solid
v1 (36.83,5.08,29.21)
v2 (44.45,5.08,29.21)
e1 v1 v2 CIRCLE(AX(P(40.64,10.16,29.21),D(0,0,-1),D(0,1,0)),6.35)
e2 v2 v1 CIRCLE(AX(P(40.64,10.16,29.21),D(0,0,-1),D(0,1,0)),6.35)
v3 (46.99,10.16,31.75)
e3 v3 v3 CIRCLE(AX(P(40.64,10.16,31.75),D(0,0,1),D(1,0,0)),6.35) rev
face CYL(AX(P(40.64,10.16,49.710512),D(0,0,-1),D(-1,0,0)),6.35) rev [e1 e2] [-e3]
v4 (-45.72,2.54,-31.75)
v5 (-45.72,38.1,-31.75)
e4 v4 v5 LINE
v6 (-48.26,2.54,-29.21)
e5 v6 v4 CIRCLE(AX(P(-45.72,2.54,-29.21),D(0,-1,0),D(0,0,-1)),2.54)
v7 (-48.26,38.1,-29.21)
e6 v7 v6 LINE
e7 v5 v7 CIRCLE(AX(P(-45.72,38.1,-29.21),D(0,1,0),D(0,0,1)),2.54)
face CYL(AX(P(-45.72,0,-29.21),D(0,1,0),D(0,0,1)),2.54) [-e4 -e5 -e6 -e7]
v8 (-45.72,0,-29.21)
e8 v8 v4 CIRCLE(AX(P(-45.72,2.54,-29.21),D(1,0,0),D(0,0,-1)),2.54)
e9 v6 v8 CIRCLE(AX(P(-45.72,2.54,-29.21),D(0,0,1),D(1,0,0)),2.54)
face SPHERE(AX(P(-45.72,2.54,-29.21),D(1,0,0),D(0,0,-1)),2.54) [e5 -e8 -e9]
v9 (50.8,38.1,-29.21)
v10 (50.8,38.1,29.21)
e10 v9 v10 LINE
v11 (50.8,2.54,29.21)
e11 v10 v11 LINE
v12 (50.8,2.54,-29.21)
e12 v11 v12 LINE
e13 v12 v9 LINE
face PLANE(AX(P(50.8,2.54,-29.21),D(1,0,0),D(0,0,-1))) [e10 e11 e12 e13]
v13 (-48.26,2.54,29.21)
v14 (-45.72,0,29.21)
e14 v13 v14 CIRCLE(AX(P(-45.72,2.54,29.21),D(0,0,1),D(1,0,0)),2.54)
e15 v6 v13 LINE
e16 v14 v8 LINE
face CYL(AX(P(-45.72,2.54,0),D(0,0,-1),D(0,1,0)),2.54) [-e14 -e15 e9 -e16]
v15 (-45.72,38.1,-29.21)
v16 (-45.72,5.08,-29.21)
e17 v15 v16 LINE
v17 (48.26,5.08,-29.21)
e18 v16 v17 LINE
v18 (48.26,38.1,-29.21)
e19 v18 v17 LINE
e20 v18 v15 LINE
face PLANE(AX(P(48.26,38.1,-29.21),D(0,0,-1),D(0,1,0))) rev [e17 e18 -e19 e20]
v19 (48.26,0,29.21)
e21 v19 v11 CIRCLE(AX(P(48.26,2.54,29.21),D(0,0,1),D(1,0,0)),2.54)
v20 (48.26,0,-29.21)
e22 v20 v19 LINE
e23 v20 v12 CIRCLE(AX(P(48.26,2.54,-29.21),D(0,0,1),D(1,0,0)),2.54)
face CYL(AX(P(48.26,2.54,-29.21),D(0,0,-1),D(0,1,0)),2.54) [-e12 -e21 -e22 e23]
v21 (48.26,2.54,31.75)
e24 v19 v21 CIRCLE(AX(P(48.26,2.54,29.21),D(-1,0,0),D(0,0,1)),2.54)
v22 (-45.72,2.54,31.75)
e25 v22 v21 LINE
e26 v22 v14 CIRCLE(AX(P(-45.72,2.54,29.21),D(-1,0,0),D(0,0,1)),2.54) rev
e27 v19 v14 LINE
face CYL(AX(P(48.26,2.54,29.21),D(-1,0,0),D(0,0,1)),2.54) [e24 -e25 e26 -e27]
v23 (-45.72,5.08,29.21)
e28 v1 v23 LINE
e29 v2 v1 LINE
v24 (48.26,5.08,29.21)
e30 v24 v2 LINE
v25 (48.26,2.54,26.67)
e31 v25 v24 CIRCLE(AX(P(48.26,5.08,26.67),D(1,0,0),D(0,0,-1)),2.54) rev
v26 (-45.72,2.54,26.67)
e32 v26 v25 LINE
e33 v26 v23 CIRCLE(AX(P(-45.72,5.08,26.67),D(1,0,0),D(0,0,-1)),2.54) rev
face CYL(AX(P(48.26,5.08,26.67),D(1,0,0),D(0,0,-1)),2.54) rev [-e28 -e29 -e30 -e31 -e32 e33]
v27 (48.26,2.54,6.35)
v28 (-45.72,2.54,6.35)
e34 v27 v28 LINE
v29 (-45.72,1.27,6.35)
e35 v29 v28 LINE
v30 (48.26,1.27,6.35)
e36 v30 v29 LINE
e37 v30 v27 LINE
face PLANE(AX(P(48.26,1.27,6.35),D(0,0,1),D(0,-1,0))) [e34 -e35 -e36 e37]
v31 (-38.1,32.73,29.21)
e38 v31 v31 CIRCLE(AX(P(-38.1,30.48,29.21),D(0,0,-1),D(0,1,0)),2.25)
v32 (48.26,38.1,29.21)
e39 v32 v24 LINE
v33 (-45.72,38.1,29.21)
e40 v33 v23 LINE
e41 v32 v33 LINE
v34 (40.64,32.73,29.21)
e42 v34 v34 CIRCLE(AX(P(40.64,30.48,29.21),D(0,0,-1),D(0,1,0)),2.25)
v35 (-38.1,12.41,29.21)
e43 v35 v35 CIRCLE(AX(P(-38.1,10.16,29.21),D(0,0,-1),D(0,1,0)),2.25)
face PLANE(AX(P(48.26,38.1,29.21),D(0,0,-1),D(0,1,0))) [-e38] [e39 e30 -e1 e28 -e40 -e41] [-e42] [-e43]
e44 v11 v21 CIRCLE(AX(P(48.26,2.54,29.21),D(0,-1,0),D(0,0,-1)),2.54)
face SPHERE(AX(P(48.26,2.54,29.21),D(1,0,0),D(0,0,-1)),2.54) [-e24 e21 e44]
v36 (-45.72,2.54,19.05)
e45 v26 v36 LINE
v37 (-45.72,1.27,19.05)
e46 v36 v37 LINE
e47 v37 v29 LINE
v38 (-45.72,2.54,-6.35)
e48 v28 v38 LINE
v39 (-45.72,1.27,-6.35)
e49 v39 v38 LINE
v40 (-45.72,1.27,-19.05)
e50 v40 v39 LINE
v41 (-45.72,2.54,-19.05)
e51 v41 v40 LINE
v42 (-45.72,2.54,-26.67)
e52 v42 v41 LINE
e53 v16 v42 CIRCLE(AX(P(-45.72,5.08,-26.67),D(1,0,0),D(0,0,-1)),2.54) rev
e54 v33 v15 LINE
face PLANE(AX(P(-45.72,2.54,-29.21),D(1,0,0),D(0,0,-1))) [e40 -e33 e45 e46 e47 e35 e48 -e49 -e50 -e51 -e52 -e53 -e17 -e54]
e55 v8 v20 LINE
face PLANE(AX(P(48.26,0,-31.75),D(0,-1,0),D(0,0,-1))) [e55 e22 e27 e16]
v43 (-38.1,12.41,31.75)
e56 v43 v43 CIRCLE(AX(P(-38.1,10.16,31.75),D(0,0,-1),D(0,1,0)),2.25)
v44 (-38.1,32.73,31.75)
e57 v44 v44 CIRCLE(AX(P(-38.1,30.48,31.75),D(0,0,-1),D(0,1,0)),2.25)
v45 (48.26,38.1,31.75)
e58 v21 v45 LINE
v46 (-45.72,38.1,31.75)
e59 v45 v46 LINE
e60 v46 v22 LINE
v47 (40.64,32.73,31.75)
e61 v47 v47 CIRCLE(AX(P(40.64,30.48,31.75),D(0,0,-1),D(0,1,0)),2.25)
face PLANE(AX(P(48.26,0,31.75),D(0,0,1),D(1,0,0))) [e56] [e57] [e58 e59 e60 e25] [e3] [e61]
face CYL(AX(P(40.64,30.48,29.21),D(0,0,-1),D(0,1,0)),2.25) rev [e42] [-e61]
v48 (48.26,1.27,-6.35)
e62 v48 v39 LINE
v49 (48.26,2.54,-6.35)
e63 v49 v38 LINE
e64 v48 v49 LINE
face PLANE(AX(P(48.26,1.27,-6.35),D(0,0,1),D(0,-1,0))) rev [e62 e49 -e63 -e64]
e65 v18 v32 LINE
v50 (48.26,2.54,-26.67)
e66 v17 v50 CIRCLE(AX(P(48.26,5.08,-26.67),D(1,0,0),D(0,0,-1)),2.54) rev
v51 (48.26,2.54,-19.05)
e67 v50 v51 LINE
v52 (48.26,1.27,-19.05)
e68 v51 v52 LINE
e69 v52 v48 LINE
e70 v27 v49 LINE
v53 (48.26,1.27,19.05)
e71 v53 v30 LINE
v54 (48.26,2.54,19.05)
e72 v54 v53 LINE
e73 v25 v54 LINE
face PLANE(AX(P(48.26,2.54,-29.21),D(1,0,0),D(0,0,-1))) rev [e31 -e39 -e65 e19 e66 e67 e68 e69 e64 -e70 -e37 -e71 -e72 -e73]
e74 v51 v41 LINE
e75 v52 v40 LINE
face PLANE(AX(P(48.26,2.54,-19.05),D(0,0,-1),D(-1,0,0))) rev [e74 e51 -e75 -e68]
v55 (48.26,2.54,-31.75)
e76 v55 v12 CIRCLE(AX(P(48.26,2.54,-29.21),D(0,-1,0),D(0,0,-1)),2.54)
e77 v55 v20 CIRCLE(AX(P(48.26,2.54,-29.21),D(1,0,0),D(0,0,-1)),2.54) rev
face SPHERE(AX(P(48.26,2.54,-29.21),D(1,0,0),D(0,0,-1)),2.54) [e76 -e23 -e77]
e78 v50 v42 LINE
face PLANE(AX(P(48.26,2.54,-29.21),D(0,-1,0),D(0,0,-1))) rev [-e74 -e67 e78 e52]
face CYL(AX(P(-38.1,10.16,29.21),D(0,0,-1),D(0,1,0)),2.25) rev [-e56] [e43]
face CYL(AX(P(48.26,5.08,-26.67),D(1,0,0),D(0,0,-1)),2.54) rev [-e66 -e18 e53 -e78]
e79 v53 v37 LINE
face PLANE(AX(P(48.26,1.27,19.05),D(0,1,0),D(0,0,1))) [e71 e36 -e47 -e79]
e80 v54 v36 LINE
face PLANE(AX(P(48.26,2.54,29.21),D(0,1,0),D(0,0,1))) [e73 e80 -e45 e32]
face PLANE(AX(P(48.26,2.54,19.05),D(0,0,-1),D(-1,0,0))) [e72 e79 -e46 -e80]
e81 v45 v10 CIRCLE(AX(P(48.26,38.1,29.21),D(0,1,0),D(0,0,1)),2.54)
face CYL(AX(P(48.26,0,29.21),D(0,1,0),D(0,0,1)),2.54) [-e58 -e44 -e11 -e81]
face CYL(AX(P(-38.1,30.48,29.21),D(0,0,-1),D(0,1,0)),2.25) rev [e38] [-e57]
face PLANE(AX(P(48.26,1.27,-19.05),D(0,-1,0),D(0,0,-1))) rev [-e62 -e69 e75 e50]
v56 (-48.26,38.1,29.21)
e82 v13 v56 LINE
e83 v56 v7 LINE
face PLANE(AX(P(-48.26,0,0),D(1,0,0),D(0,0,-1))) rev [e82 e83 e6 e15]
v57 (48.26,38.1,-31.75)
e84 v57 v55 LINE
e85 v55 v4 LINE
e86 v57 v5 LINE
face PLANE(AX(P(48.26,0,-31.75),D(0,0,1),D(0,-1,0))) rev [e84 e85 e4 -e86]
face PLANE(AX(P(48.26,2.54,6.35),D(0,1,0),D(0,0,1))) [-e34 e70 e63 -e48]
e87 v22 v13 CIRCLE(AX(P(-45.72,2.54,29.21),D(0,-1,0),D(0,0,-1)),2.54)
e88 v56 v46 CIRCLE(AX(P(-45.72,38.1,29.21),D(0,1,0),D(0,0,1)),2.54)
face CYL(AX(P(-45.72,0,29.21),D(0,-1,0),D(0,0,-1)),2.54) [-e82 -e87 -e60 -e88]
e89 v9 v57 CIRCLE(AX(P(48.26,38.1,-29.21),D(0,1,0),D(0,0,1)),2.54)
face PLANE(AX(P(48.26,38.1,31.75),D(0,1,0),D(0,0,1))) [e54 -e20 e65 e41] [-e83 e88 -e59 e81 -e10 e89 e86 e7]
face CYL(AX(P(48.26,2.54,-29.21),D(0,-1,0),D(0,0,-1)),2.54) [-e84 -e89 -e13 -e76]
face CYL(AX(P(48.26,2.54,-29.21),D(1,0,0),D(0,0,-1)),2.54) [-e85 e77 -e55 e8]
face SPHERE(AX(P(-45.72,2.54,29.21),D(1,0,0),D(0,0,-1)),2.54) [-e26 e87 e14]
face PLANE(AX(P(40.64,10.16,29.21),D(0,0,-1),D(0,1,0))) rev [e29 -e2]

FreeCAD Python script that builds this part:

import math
import FreeCAD as App
import Part
import Sketcher

V = App.Vector
Q = App.Units.Quantity


def edges_at(feature, points):
    """Names of the edges that pass closest to the given points."""
    edges = feature.Shape.Edges
    near = lambda p: min(range(len(edges)), key=lambda i: edges[i].distToShape(Part.Vertex(*p))[0])
    return sorted({f"Edge{near(p) + 1}" for p in points})

doc = App.newDocument("Part")
params = doc.addObject("Spreadsheet::Sheet", "Params")
for row, (alias, value) in enumerate([
    ("sketch1_width", "1.5 in"),
    ("sketch1_width2", "1.4 in"),
    ("sketch1_height", "2.5 in"),
    ("sketch1_height2", "0.1 in"),
    ("sketch1_height3", "0.4 in"),
    ("pad1_length", "3.8 in"),
    ("fillet_radius", "0.1 in"),
    ("sketch2_radius", "0.1 in"),
    ("sketch2_width", "1.4 in"),
    ("sketch2_height", "2.3 in"),
    ("pad2_length", "0.1 in"),
    ("sketch3_radius", "0.1 in"),
    ("sketch3_width", "1.4 in"),
    ("sketch3_height", "2.5 in"),
    ("pad3_length", "0.1 in"),
    ("sketch4_diameter", "0.5 in"),
    ("pocket1_length", "0.1 in"),
    ("fillet2_radius", "0.1 in"),
    ("hole_diameter", "4.5 mm"),
    ("hole_depth", "0.1 in"),
], start=1):
    params.set(f"A{row}", alias)
    params.set(f"B{row}", "=" + value)
    params.setAlias(f"B{row}", alias)

body = doc.addObject("PartDesign::Body", "Body")

# Sketch on YZ plane
sketch1 = body.newObject("Sketcher::SketchObject", "Sketch")
sketch1.AttachmentSupport = (doc.getObject("YZ_Plane"), [""])
sketch1.MapMode = "FlatFace"
sketch1.addGeometry([
    Part.LineSegment(V(0, 31.8, 0), V(0, -31.8, 0)),  # 0
    Part.LineSegment(V(0, -31.8, 0), V(38.1, -31.8, 0)),  # 1
    Part.LineSegment(V(38.1, -31.8, 0), V(38.1, -29.2, 0)),  # 2
    Part.LineSegment(V(38.1, -29.2, 0), V(2.5, -29.2, 0)),  # 3
    Part.LineSegment(V(2.5, -29.2, 0), V(2.5, -19.1, 0)),  # 4
    Part.LineSegment(V(2.5, -19.1, 0), V(1.3, -19.1, 0)),  # 5
    Part.LineSegment(V(1.3, -19.1, 0), V(1.3, -6.3, 0)),  # 6
    Part.LineSegment(V(1.3, -6.3, 0), V(2.5, -6.3, 0)),  # 7
    Part.LineSegment(V(2.5, -6.3, 0), V(2.5, 6.3, 0)),  # 8
    Part.LineSegment(V(2.5, 6.3, 0), V(1.3, 6.3, 0)),  # 9
    Part.LineSegment(V(1.3, 6.3, 0), V(1.3, 19.1, 0)),  # 10
    Part.LineSegment(V(1.3, 19.1, 0), V(2.5, 19.1, 0)),  # 11
    Part.LineSegment(V(2.5, 19.1, 0), V(2.5, 29.2, 0)),  # 12
    Part.LineSegment(V(2.5, 29.2, 0), V(38.1, 29.2, 0)),  # 13
    Part.LineSegment(V(38.1, 29.2, 0), V(38.1, 31.8, 0)),  # 14
    Part.LineSegment(V(38.1, 31.8, 0), V(0, 31.8, 0)),  # 15
], False)
sketch1.addConstraint([
    Sketcher.Constraint("Coincident", 0, 2, 1, 1),
    Sketcher.Constraint("Coincident", 1, 2, 2, 1),
    Sketcher.Constraint("Coincident", 2, 2, 3, 1),
    Sketcher.Constraint("Coincident", 3, 2, 4, 1),
    Sketcher.Constraint("Coincident", 4, 2, 5, 1),
    Sketcher.Constraint("Coincident", 5, 2, 6, 1),
    Sketcher.Constraint("Coincident", 6, 2, 7, 1),
    Sketcher.Constraint("Coincident", 7, 2, 8, 1),
    Sketcher.Constraint("Coincident", 8, 2, 9, 1),
    Sketcher.Constraint("Coincident", 9, 2, 10, 1),
    Sketcher.Constraint("Coincident", 10, 2, 11, 1),
    Sketcher.Constraint("Coincident", 11, 2, 12, 1),
    Sketcher.Constraint("Coincident", 12, 2, 13, 1),
    Sketcher.Constraint("Coincident", 13, 2, 14, 1),
    Sketcher.Constraint("Coincident", 14, 2, 15, 1),
    Sketcher.Constraint("Coincident", 15, 2, 0, 1),
    Sketcher.Constraint("Vertical", 0),
    Sketcher.Constraint("Horizontal", 1),
    Sketcher.Constraint("Vertical", 2),
    Sketcher.Constraint("Horizontal", 3),
    Sketcher.Constraint("Vertical", 4),
    Sketcher.Constraint("Horizontal", 5),
    Sketcher.Constraint("Vertical", 6),
    Sketcher.Constraint("Horizontal", 7),
    Sketcher.Constraint("Vertical", 8),
    Sketcher.Constraint("Horizontal", 9),
    Sketcher.Constraint("Vertical", 10),
    Sketcher.Constraint("Horizontal", 11),
    Sketcher.Constraint("Vertical", 12),
    Sketcher.Constraint("Horizontal", 13),
    Sketcher.Constraint("Vertical", 14),
    Sketcher.Constraint("Horizontal", 15),
    Sketcher.Constraint("Symmetric", 0, 2, 15, 2, -1, 1),
    Sketcher.Constraint("Symmetric", 6, 2, 9, 2, -1),
    Sketcher.Constraint("Symmetric", 4, 2, 11, 2, -1),
    Sketcher.Constraint("Symmetric", 2, 2, 13, 2, -1),
    Sketcher.Constraint("Vertical", 4, 2, 7, 2),
    Sketcher.Constraint("Equal", 6, 8),
    Sketcher.Constraint("DistanceX", 1, 1, 1, 2, Q("1.5 in")),
    Sketcher.Constraint("DistanceX", 3, 2, 3, 1, Q("1.4 in")),
    Sketcher.Constraint("DistanceY", 0, 2, 0, 1, Q("2.5 in")),
    Sketcher.Constraint("DistanceY", 2, 1, 2, 2, Q("0.1 in")),
    Sketcher.Constraint("DistanceY", 4, 1, 4, 2, Q("0.4 in")),
    Sketcher.Constraint("DistanceX", 5, 2, 5, 1, Q("0.05 in")),
])
sketch1.setExpression("Constraints[38]", "Params.sketch1_width")
sketch1.setExpression("Constraints[39]", "Params.sketch1_width2")
sketch1.setExpression("Constraints[40]", "Params.sketch1_height")
sketch1.setExpression("Constraints[41]", "Params.sketch1_height2")
sketch1.setExpression("Constraints[42]", "Params.sketch1_height3")
pad1 = body.newObject("PartDesign::Pad", "Pad")
pad1.Profile = sketch1
pad1.setExpression("Length", "Params.pad1_length")
pad1.Midplane = True
doc.recompute()

fillet = body.newObject("PartDesign::Fillet", "Fillet")
fillet.Base = (pad1, edges_at(pad1, [
    (0, 0, 31.75),
    (0, 0, -31.75),
    (0, 2.54, -29.21),
    (0, 2.54, 29.21),
]))
fillet.setExpression("Radius", "Params.fillet_radius")

# Sketch on YZ plane
sketch2 = body.newObject("Sketcher::SketchObject", "Sketch001")
sketch2.AttachmentSupport = (doc.getObject("YZ_Plane"), [""])
sketch2.MapMode = "FlatFace"
sketch2.AttachmentOffset = App.Placement(V(0, 0, -1.9 * 25.4), App.Rotation())
sketch2.addGeometry([
    Part.LineSegment(V(38.1, 31.8, 0), V(2.5, 31.8, 0)),  # 0
    Part.ArcOfCircle(Part.Circle(V(2.5, 29.2, 0), V(0, 0, 1), 2.5), math.radians(90), math.radians(180)),  # 1
    Part.LineSegment(V(0, 29.2, 0), V(0, -29.2, 0)),  # 2
    Part.ArcOfCircle(Part.Circle(V(2.5, -29.2, 0), V(0, 0, 1), 2.5), math.radians(180), math.radians(270)),  # 3
    Part.LineSegment(V(2.5, -31.8, 0), V(38.1, -31.8, 0)),  # 4
    Part.LineSegment(V(38.1, -31.8, 0), V(38.1, 31.8, 0)),  # 5
], False)
sketch2.addConstraint([
    Sketcher.Constraint("Tangent", 0, 2, 1, 1),
    Sketcher.Constraint("Tangent", 1, 2, 2, 1),
    Sketcher.Constraint("Tangent", 2, 2, 3, 1),
    Sketcher.Constraint("Tangent", 3, 2, 4, 1),
    Sketcher.Constraint("Coincident", 4, 2, 5, 1),
    Sketcher.Constraint("Coincident", 5, 2, 0, 1),
    Sketcher.Constraint("Horizontal", 0),
    Sketcher.Constraint("Vertical", 2),
    Sketcher.Constraint("Horizontal", 4),
    Sketcher.Constraint("Vertical", 5),
    Sketcher.Constraint("Equal", 1, 3),
    Sketcher.Constraint("Symmetric", 1, 2, 2, 2, -1, 1),
    Sketcher.Constraint("Radius", 1, Q("0.1 in")),
    Sketcher.Constraint("DistanceX", 0, 2, 0, 1, Q("1.4 in")),
    Sketcher.Constraint("DistanceY", 2, 2, 2, 1, Q("2.3 in")),
])
sketch2.setExpression("Constraints[12]", "Params.sketch2_radius")
sketch2.setExpression("Constraints[13]", "Params.sketch2_width")
sketch2.setExpression("Constraints[14]", "Params.sketch2_height")
pad2 = body.newObject("PartDesign::Pad", "Pad001")
pad2.Profile = sketch2
pad2.setExpression("Length", "Params.pad2_length")

# Sketch on YZ plane
sketch3 = body.newObject("Sketcher::SketchObject", "Sketch002")
sketch3.AttachmentSupport = (doc.getObject("YZ_Plane"), [""])
sketch3.MapMode = "FlatFace"
sketch3.AttachmentOffset = App.Placement(V(0, 0, 1.9 * 25.4), App.Rotation())
sketch3.addGeometry([
    Part.LineSegment(V(38.1, -31.8, 0), V(38.1, 31.8, 0)),  # 0
    Part.LineSegment(V(38.1, 31.8, 0), V(2.5, 31.8, 0)),  # 1
    Part.ArcOfCircle(Part.Circle(V(2.5, 29.2, 0), V(0, 0, 1), 2.5), math.radians(90), math.radians(180)),  # 2
    Part.LineSegment(V(0, 29.2, 0), V(0, -29.2, 0)),  # 3
    Part.ArcOfCircle(Part.Circle(V(2.5, -29.2, 0), V(0, 0, 1), 2.5), math.radians(180), math.radians(270)),  # 4
    Part.LineSegment(V(2.5, -31.8, 0), V(38.1, -31.8, 0)),  # 5
], False)
sketch3.addConstraint([
    Sketcher.Constraint("Coincident", 0, 2, 1, 1),
    Sketcher.Constraint("Tangent", 1, 2, 2, 1),
    Sketcher.Constraint("Tangent", 2, 2, 3, 1),
    Sketcher.Constraint("Tangent", 3, 2, 4, 1),
    Sketcher.Constraint("Tangent", 4, 2, 5, 1),
    Sketcher.Constraint("Coincident", 5, 2, 0, 1),
    Sketcher.Constraint("Vertical", 0),
    Sketcher.Constraint("Horizontal", 1),
    Sketcher.Constraint("Vertical", 3),
    Sketcher.Constraint("Horizontal", 5),
    Sketcher.Constraint("Equal", 2, 4),
    Sketcher.Constraint("Symmetric", 2, 2, 3, 2, -1, 1),
    Sketcher.Constraint("Radius", 2, Q("0.1 in")),
    Sketcher.Constraint("DistanceX", 1, 2, 1, 1, Q("1.4 in")),
    Sketcher.Constraint("DistanceY", 0, 1, 0, 2, Q("2.5 in")),
])
sketch3.setExpression("Constraints[12]", "Params.sketch3_radius")
sketch3.setExpression("Constraints[13]", "Params.sketch3_width")
sketch3.setExpression("Constraints[14]", "Params.sketch3_height")
pad3 = body.newObject("PartDesign::Pad", "Pad002")
pad3.Profile = sketch3
pad3.setExpression("Length", "Params.pad3_length")

# Sketch on XY plane
sketch4 = body.newObject("Sketcher::SketchObject", "Sketch003")
sketch4.AttachmentSupport = (doc.getObject("XY_Plane"), [""])
sketch4.MapMode = "FlatFace"
sketch4.AttachmentOffset = App.Placement(V(0, 0, 1.15 * 25.4), App.Rotation())
sketch4.addGeometry(Part.Circle(V(41, 10, 0), V(0, 0, 1), 6), False)
sketch4.addConstraint([
    Sketcher.Constraint("Diameter", 0, Q("0.5 in")),
    Sketcher.Constraint("DistanceX", -1, 1, 0, 3, Q("1.6 in")),
    Sketcher.Constraint("DistanceY", -1, 1, 0, 3, Q("0.4 in")),
])
sketch4.setExpression("Constraints[0]", "Params.sketch4_diameter")
pocket1 = body.newObject("PartDesign::Pocket", "Pocket")
pocket1.Profile = sketch4
pocket1.setExpression("Length", "Params.pocket1_length")
pocket1.Reversed = True
doc.recompute()

fillet2 = body.newObject("PartDesign::Fillet", "Fillet001")
fillet2.Base = (pocket1, edges_at(pocket1, [
    (50.8, 20.32, 31.75),
    (50.8, 0.744, 31.006),
    (50.8, 0, 0),
    (50.8, 0.744, -31.006),
    (50.8, 20.32, -31.75),
    (-48.26, 20.32, -31.75),
    (-48.26, 0, 0),
    (-48.26, 20.32, 31.75),
    (-48.26, 0.744, 31.006),
    (-48.26, 0.744, -31.006),
]))
fillet2.setExpression("Radius", "Params.fillet2_radius")

# Sketch on XY plane
sketch5 = body.newObject("Sketcher::SketchObject", "Sketch004")
sketch5.AttachmentSupport = (doc.getObject("XY_Plane"), [""])
sketch5.MapMode = "FlatFace"
sketch5.AttachmentOffset = App.Placement(V(0, 0, 1.15 * 25.4), App.Rotation())
sketch5.addGeometry([
    Part.Circle(V(40.6, 30.5, 0), V(0, 0, 1), 2.2),
    Part.Circle(V(-38.1, 30.5, 0), V(0, 0, 1), 2.2),
    Part.Circle(V(-38.1, 10.2, 0), V(0, 0, 1), 2.2),
], False)
sketch5.addConstraint([
    Sketcher.Constraint("Equal", 0, 1),
    Sketcher.Constraint("Equal", 1, 2),
    Sketcher.Constraint("Horizontal", 0, 3, 1, 3),
    Sketcher.Constraint("Vertical", 1, 3, 2, 3),
    Sketcher.Constraint("DistanceX", -1, 1, 0, 3, Q("1.6 in")),
    Sketcher.Constraint("DistanceY", -1, 1, 0, 3, Q("1.2 in")),
    Sketcher.Constraint("DistanceX", 1, 3, -1, 1, Q("1.5 in")),
    Sketcher.Constraint("DistanceY", -1, 1, 2, 3, Q("0.4 in")),
    Sketcher.Constraint("Diameter", 0, 4.5),
])
doc.recompute()
hole = body.newObject("PartDesign::Hole", "Hole")
hole.Profile = sketch5
hole.ThreadType = "None"
hole.setExpression("Diameter", "Params.hole_diameter")
hole.DepthType = "Dimension"
hole.setExpression("Depth", "Params.hole_depth")
hole.DrillPoint = "Flat"
hole.Reversed = True

doc.recompute()
